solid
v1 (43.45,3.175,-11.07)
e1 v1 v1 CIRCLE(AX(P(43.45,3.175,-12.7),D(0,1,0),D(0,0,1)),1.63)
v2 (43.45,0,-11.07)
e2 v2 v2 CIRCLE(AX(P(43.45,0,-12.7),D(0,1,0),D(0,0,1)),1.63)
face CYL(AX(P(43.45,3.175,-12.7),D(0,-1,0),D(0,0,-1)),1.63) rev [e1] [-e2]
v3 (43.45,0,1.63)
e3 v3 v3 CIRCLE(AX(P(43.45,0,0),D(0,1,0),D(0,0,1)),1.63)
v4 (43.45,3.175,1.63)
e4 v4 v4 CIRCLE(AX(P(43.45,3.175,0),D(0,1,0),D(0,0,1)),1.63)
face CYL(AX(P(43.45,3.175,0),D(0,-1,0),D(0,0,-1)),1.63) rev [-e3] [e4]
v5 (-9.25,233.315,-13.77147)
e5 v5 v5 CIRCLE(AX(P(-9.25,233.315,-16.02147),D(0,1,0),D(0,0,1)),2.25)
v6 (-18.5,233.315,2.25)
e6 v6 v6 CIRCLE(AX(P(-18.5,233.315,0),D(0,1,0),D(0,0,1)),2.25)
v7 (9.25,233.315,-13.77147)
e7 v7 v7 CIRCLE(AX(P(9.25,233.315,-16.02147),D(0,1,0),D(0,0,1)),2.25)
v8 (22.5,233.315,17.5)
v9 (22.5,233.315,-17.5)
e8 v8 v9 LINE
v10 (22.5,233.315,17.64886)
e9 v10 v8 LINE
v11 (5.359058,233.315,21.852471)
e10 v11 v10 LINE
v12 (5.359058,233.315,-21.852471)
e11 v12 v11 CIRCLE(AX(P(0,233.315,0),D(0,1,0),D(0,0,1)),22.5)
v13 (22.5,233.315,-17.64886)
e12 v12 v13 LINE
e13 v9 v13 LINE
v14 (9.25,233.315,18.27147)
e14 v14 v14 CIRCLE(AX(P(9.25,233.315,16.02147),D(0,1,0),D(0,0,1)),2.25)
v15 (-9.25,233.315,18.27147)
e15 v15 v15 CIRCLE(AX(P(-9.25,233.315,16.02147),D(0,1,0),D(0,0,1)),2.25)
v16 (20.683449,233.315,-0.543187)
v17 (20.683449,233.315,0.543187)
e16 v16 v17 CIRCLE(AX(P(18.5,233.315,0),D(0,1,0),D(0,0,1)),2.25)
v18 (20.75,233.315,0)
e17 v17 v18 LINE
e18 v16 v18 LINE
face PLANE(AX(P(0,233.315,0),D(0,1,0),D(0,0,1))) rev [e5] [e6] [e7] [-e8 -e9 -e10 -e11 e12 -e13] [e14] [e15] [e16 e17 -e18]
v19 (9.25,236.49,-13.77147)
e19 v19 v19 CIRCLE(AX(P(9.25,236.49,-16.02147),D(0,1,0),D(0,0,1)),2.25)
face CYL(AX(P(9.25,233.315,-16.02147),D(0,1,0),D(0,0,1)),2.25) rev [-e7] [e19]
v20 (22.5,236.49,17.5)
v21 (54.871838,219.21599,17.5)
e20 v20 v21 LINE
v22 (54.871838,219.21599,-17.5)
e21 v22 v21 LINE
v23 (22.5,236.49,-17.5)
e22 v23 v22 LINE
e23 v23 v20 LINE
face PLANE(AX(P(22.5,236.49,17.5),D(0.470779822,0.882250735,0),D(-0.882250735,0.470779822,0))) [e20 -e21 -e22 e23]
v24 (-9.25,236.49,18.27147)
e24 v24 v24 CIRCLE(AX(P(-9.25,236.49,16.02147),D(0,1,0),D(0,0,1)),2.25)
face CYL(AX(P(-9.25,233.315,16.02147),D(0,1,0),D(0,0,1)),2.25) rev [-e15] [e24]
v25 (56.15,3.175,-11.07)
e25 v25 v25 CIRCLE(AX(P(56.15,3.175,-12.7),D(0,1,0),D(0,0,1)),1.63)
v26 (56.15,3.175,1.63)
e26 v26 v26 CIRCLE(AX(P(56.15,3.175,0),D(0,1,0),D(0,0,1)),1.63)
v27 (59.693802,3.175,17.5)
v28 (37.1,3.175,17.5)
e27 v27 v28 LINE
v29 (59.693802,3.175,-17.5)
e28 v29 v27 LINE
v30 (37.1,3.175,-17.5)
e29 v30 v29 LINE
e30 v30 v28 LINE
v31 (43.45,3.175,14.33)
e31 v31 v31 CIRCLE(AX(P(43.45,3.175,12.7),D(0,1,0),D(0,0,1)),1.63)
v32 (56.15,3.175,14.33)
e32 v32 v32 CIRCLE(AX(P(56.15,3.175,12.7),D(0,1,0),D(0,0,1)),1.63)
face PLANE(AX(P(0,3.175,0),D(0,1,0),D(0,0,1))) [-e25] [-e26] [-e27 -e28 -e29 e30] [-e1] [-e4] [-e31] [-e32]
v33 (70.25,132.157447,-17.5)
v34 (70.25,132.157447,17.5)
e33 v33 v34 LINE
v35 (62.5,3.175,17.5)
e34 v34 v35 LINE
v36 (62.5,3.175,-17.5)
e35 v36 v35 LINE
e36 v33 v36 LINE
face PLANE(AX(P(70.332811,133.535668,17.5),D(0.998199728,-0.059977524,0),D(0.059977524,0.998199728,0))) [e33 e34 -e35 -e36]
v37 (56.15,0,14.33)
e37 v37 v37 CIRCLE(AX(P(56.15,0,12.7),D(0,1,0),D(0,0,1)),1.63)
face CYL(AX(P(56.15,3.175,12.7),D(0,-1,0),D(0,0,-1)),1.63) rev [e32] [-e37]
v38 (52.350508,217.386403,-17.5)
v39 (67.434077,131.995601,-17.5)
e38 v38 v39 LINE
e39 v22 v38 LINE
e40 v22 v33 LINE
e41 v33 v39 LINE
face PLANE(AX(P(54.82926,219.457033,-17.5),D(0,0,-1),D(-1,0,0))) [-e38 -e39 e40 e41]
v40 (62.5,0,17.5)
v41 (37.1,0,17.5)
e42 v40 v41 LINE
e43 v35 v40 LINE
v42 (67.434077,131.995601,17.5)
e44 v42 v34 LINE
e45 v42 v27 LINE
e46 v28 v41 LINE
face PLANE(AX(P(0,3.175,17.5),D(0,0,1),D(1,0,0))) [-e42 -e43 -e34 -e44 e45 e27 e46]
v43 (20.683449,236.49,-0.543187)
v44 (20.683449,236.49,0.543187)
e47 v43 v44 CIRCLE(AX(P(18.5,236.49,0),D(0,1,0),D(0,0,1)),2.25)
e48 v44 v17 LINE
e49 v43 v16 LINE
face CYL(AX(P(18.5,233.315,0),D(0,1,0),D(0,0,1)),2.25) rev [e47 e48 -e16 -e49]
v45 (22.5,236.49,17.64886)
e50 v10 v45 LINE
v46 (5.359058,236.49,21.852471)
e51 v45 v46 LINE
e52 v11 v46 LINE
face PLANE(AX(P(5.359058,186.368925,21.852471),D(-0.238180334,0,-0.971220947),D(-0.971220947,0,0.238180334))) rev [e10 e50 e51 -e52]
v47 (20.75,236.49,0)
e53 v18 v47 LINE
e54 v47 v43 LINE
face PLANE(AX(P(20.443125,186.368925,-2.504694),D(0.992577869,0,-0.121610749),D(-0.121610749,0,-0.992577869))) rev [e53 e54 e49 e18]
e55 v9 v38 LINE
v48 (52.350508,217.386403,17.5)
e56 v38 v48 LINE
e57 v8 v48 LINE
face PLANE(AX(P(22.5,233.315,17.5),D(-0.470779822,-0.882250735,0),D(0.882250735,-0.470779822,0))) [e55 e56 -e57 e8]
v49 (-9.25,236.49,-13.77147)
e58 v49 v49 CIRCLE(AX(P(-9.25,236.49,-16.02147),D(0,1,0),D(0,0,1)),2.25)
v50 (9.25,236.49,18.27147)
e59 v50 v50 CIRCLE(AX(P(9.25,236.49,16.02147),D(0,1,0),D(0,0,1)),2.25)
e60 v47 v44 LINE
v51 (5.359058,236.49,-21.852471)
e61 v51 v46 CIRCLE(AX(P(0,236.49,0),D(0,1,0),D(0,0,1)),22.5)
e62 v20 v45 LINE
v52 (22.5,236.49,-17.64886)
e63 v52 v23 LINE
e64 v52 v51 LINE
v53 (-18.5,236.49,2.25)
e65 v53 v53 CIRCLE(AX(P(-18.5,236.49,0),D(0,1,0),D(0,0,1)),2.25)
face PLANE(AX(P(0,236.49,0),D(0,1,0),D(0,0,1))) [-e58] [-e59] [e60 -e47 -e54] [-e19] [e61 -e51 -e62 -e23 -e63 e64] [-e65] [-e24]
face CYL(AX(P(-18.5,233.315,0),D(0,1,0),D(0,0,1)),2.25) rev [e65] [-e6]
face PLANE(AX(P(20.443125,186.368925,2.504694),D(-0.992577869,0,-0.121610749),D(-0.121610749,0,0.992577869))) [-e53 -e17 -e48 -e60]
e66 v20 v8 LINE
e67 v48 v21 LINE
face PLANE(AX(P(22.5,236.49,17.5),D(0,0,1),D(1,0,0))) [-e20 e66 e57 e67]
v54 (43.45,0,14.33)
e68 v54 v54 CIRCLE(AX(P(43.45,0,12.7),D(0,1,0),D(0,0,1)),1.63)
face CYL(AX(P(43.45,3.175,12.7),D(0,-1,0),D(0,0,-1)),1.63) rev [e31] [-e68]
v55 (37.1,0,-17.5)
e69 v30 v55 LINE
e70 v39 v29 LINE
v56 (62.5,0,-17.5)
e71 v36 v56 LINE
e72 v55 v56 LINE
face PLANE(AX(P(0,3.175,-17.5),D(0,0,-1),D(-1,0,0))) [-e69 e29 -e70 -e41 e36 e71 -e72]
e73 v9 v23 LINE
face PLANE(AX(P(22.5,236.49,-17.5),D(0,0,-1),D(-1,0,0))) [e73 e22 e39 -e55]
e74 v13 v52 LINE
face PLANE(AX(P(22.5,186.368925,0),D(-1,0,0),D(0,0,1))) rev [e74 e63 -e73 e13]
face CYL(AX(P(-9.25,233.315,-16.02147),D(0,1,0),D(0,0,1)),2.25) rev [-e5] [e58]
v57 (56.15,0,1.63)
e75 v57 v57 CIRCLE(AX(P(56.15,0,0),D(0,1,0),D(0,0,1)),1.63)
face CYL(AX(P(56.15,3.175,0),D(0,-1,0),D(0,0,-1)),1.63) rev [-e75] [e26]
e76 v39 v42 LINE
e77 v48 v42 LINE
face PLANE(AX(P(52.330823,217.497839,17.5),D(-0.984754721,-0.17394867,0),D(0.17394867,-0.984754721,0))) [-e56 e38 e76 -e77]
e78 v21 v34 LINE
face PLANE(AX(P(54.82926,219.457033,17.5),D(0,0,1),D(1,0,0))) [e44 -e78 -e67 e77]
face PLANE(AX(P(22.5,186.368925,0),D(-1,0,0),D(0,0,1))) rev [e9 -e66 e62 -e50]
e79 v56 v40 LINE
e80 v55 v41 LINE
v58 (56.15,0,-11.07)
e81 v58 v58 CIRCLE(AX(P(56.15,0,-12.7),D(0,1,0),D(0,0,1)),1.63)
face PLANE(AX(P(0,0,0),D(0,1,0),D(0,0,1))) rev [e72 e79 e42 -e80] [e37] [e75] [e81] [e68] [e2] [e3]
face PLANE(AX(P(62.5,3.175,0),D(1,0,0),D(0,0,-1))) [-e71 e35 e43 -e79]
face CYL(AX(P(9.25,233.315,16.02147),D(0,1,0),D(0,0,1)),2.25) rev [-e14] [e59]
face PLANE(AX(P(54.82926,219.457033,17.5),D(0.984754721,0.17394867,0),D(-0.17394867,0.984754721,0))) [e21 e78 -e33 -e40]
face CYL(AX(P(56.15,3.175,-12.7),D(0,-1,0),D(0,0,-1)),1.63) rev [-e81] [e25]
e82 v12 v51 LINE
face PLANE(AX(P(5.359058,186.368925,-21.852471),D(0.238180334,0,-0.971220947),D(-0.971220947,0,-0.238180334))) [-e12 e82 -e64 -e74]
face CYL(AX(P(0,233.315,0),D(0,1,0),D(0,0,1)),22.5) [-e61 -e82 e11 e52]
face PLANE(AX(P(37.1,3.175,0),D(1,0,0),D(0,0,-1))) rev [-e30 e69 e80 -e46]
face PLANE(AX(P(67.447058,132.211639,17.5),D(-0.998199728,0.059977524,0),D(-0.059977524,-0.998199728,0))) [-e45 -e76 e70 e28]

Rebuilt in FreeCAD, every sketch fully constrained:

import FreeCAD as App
import Part
import Sketcher
from FreeCAD import Vector
Q = App.Units.Quantity

doc = App.newDocument("Part")
params = doc.addObject("Spreadsheet::Sheet", "Params")
for row, (alias, value) in enumerate([
    ("sketch1_diameter", "45 mm"),
    ("sketch1_diameter2", "4.5 mm"),
    ("pad1_length", "3.175 mm"),
    ("pad2_length", "3.175 mm"),
    ("sketch3_diameter", "3.26 mm"),
    ("sketch3_height", "35 mm"),
    ("sketch3_width", "25.4 mm"),
    ("pad3_length", "3.175 mm"),
    ("sketch4_height", "35 mm"),
], start=1):
    params.set(f"A{row}", alias)
    params.set(f"B{row}", "=" + value)
    params.setAlias(f"B{row}", alias)

body = doc.addObject("PartDesign::Body", "Body")

# Sketch on XZ plane
sketch1 = body.newObject("Sketcher::SketchObject", "Sketch")
sketch1.AttachmentSupport = (doc.getObject("XZ_Plane"), [""])
sketch1.MapMode = "FlatFace"
sketch1.AttachmentOffset = App.Placement(Vector(0, 0, -236.49), App.Rotation())
sketch1.addGeometry([
    Part.Circle(Vector(0, 0, 0), Vector(0, 0, 1), 22.5),  # 0
    Part.Circle(Vector(-9.25, -16.02147, 0), Vector(0, 0, 1), 2.25),  # 1
    Part.Circle(Vector(-18.5, 0, 0), Vector(0, 0, 1), 2.25),  # 2
    Part.Circle(Vector(-9.25, 16.02147, 0), Vector(0, 0, 1), 2.25),  # 3
    Part.Circle(Vector(9.25, -16.02147, 0), Vector(0, 0, 1), 2.25),  # 4
    Part.Circle(Vector(18.5, 0, 0), Vector(0, 0, 1), 2.25),  # 5
    Part.Circle(Vector(9.25, 16.02147, 0), Vector(0, 0, 1), 2.25),  # 6
], False)
sketch1.addConstraint([
    Sketcher.Constraint("Coincident", 0, 3, -1, 1),
    Sketcher.Constraint("Equal", 1, 2),
    Sketcher.Constraint("Equal", 2, 3),
    Sketcher.Constraint("Equal", 3, 4),
    Sketcher.Constraint("Equal", 4, 5),
    Sketcher.Constraint("Equal", 5, 6),
    Sketcher.Constraint("Symmetric", 3, 3, 4, 3, -1, 1),
    Sketcher.Constraint("Symmetric", 2, 3, 5, 3, -1, 1),
    Sketcher.Constraint("Symmetric", 1, 3, 6, 3, -1, 1),
    Sketcher.Constraint("Symmetric", 1, 3, 4, 3, -2),
    Sketcher.Constraint("PointOnObject", 2, 3, -1),
    Sketcher.Constraint("Diameter", 0, Q("45 mm")),
    Sketcher.Constraint("Diameter", 1, Q("4.5 mm")),
    Sketcher.Constraint("DistanceX", 2, 3, 5, 3, Q("37 mm")),
    Sketcher.Constraint("DistanceX", 1, 3, 4, 3, Q("18.5 mm")),
    Sketcher.Constraint("DistanceY", 1, 3, -1, 1, Q("16.02147 mm")),
])
sketch1.setExpression("Constraints[11]", "Params.sketch1_diameter")
sketch1.setExpression("Constraints[12]", "Params.sketch1_diameter2")
pad1 = body.newObject("PartDesign::Pad", "Pad")
pad1.Profile = sketch1
pad1.setExpression("Length", "Params.pad1_length")

# Sketch on XZ plane
sketch2 = body.newObject("Sketcher::SketchObject", "Sketch001")
sketch2.AttachmentSupport = (doc.getObject("XZ_Plane"), [""])
sketch2.MapMode = "FlatFace"
sketch2.AttachmentOffset = App.Placement(Vector(0, 0, -236.49), App.Rotation())
sketch2.addGeometry([
    Part.LineSegment(Vector(22.5, 17.64886, 0), Vector(22.5, -17.64886, 0)),  # 0
    Part.LineSegment(Vector(22.5, -17.64886, 0), Vector(5.359058, -21.852471, 0)),  # 1
    Part.LineSegment(Vector(5.359058, -21.852471, 0), Vector(19.341522, -11.495892, 0)),  # 2
    Part.LineSegment(Vector(19.341522, -11.495892, 0), Vector(20.75, 0, 0)),  # 3
    Part.LineSegment(Vector(20.75, 0, 0), Vector(19.341522, 11.495892, 0)),  # 4
    Part.LineSegment(Vector(19.341522, 11.495892, 0), Vector(5.359058, 21.852471, 0)),  # 5
    Part.LineSegment(Vector(5.359058, 21.852471, 0), Vector(22.5, 17.64886, 0)),  # 6
], False)
sketch2.addConstraint([
    Sketcher.Constraint("Coincident", 0, 2, 1, 1),
    Sketcher.Constraint("Coincident", 1, 2, 2, 1),
    Sketcher.Constraint("Coincident", 2, 2, 3, 1),
    Sketcher.Constraint("Coincident", 3, 2, 4, 1),
    Sketcher.Constraint("Coincident", 4, 2, 5, 1),
    Sketcher.Constraint("Coincident", 5, 2, 6, 1),
    Sketcher.Constraint("Coincident", 6, 2, 0, 1),
    Sketcher.Constraint("Vertical", 0),
    Sketcher.Constraint("Symmetric", 2, 2, 4, 2, -1),
    Sketcher.Constraint("Symmetric", 1, 2, 5, 2, -1),
    Sketcher.Constraint("PointOnObject", 3, 2, -1),
    Sketcher.Constraint("Equal", 1, 6),
    Sketcher.Constraint("DistanceX", -1, 1, 0, 2, Q("22.5 mm")),
    Sketcher.Constraint("DistanceX", -1, 1, 3, 2, Q("20.75 mm")),
    Sketcher.Constraint("DistanceY", 0, 2, 0, 1, Q("35.29772 mm")),
    Sketcher.Constraint("Distance", 1, Q("17.64886 mm")),
    Sketcher.Constraint("Distance", 2, Q("17.400232 mm")),
    Sketcher.Constraint("DistanceY", 1, 2, -1, 1, Q("21.852471 mm")),
    Sketcher.Constraint("DistanceY", 2, 2, -1, 1, Q("11.495892 mm")),
])
pad2 = body.newObject("PartDesign::Pad", "Pad001")
pad2.Profile = sketch2
pad2.setExpression("Length", "Params.pad2_length")
body2 = doc.addObject("PartDesign::Body", "Body001")

# Sketch on XZ plane
sketch3 = body2.newObject("Sketcher::SketchObject", "Sketch002")
sketch3.AttachmentSupport = (doc.getObject("XZ_Plane001"), [""])
sketch3.MapMode = "FlatFace"
sketch3.addGeometry([
    Part.LineSegment(Vector(37.1, -17.5, 0), Vector(37.1, 17.5, 0)),  # 0
    Part.LineSegment(Vector(37.1, 17.5, 0), Vector(62.5, 17.5, 0)),  # 1
    Part.LineSegment(Vector(62.5, 17.5, 0), Vector(62.5, -17.5, 0)),  # 2
    Part.LineSegment(Vector(62.5, -17.5, 0), Vector(37.1, -17.5, 0)),  # 3
    Part.Circle(Vector(43.45, 12.7, 0), Vector(0, 0, 1), 1.63),  # 4
    Part.Circle(Vector(56.15, 12.7, 0), Vector(0, 0, 1), 1.63),  # 5
    Part.Circle(Vector(43.45, 0, 0), Vector(0, 0, 1), 1.63),  # 6
    Part.Circle(Vector(43.45, -12.7, 0), Vector(0, 0, 1), 1.63),  # 7
    Part.Circle(Vector(56.15, 0, 0), Vector(0, 0, 1), 1.63),  # 8
    Part.Circle(Vector(56.15, -12.7, 0), Vector(0, 0, 1), 1.63),  # 9
], False)
sketch3.addConstraint([
    Sketcher.Constraint("Coincident", 0, 2, 1, 1),
    Sketcher.Constraint("Coincident", 1, 2, 2, 1),
    Sketcher.Constraint("Coincident", 2, 2, 3, 1),
    Sketcher.Constraint("Coincident", 3, 2, 0, 1),
    Sketcher.Constraint("Vertical", 0),
    Sketcher.Constraint("Horizontal", 1),
    Sketcher.Constraint("Vertical", 2),
    Sketcher.Constraint("Horizontal", 3),
    Sketcher.Constraint("Equal", 4, 5),
    Sketcher.Constraint("Equal", 5, 6),
    Sketcher.Constraint("Equal", 6, 7),
    Sketcher.Constraint("Equal", 7, 8),
    Sketcher.Constraint("Equal", 8, 9),
    Sketcher.Constraint("Symmetric", 4, 3, 7, 3, -1),
    Sketcher.Constraint("Symmetric", 5, 3, 9, 3, -1),
    Sketcher.Constraint("PointOnObject", 6, 3, -1),
    Sketcher.Constraint("PointOnObject", 8, 3, -1),
    Sketcher.Constraint("Horizontal", 4, 3, 5, 3),
    Sketcher.Constraint("Vertical", 4, 3, 6, 3),
    Sketcher.Constraint("Vertical", 5, 3, 8, 3),
    Sketcher.Constraint("Diameter", 4, Q("3.26 mm")),
    Sketcher.Constraint("DistanceY", 0, 1, 0, 2, Q("35 mm")),
    Sketcher.Constraint("DistanceX", 1, 1, 1, 2, Q("25.4 mm")),
    Sketcher.Constraint("DistanceY", -1, 1, 4, 3, Q("12.7 mm")),
    Sketcher.Constraint("DistanceX", -1, 1, 0, 2, Q("37.1 mm")),
    Sketcher.Constraint("DistanceY", -1, 1, 0, 2, Q("17.5 mm")),
    Sketcher.Constraint("DistanceX", 4, 3, 5, 3, Q("12.7 mm")),
    Sketcher.Constraint("DistanceX", -1, 1, 4, 3, Q("43.45 mm")),
])
sketch3.setExpression("Constraints[20]", "Params.sketch3_diameter")
sketch3.setExpression("Constraints[21]", "Params.sketch3_height")
sketch3.setExpression("Constraints[22]", "Params.sketch3_width")
pad3 = body2.newObject("PartDesign::Pad", "Pad002")
pad3.Profile = sketch3
pad3.setExpression("Length", "Params.pad3_length")
pad3.Reversed = True
body.AllowCompound = True
doc.recompute()

boolean = body.newObject("PartDesign::Boolean", "Boolean")
boolean.Type = "Fuse"
boolean.addObjects([body2])

# Sketch on YZ plane
sketch4 = body.newObject("Sketcher::SketchObject", "Sketch003")
sketch4.AttachmentSupport = (doc.getObject("YZ_Plane"), [""])
sketch4.MapMode = "FlatFace"
sketch4.AttachmentOffset = App.Placement(Vector(0, 0, 22.5), App.Rotation())
sketch4.addGeometry([
    Part.LineSegment(Vector(236.49, 17.5, 0), Vector(233.315, 17.5, 0)),
    Part.LineSegment(Vector(233.315, 17.5, 0), Vector(233.315, -17.5, 0)),
    Part.LineSegment(Vector(233.315, -17.5, 0), Vector(236.49, -17.5, 0)),
    Part.LineSegment(Vector(236.49, -17.5, 0), Vector(236.49, 17.5, 0)),
], False)
sketch4.addConstraint([
    Sketcher.Constraint("Coincident", 0, 2, 1, 1),
    Sketcher.Constraint("Coincident", 1, 2, 2, 1),
    Sketcher.Constraint("Coincident", 2, 2, 3, 1),
    Sketcher.Constraint("Coincident", 3, 2, 0, 1),
    Sketcher.Constraint("Horizontal", 0),
    Sketcher.Constraint("Vertical", 1),
    Sketcher.Constraint("Horizontal", 2),
    Sketcher.Constraint("Vertical", 3),
    Sketcher.Constraint("DistanceY", 1, 2, 1, 1, Q("35 mm")),
    Sketcher.Constraint("DistanceY", -1, 1, 0, 2, Q("17.5 mm")),
    Sketcher.Constraint("DistanceX", 0, 2, 0, 1, Q("3.175 mm")),
    Sketcher.Constraint("DistanceX", -1, 1, 2, 2, Q("236.49 mm")),
])
sketch4.setExpression("Constraints[8]", "Params.sketch4_height")

# Sketch on XY plane
sketch5 = body.newObject("Sketcher::SketchObject", "Sketch004")
sketch5.AttachmentSupport = (doc.getObject("XY_Plane"), [""])
sketch5.MapMode = "FlatFace"
sketch5.addGeometry([
    Part.LineSegment(Vector(22.5, 236.49, 0), Vector(54.871838, 219.21599, 0)),
    Part.LineSegment(Vector(54.871838, 219.21599, 0), Vector(70.25, 132.157447, 0)),
    Part.LineSegment(Vector(70.25, 132.157447, 0), Vector(62.5, 3.175, 0)),
], False)
sketch5.addConstraint([
    Sketcher.Constraint("Coincident", 0, 2, 1, 1),
    Sketcher.Constraint("Coincident", 1, 2, 2, 1),
    Sketcher.Constraint("DistanceX", 0, 1, 2, 2, Q("40 mm")),
    Sketcher.Constraint("DistanceX", -1, 1, 0, 1, Q("22.5 mm")),
    Sketcher.Constraint("DistanceY", -1, 1, 0, 1, Q("236.49 mm")),
    Sketcher.Constraint("DistanceX", -1, 1, 1, 2, Q("70.25 mm")),
    Sketcher.Constraint("DistanceY", -1, 1, 2, 2, Q("3.175 mm")),
    Sketcher.Constraint("Distance", 1, Q("88.406322 mm")),
    Sketcher.Constraint("Distance", 2, Q("129.21507 mm")),
    Sketcher.Constraint("DistanceY", -1, 1, 0, 2, Q("219.21599 mm")),
])
doc.recompute()

additivepipe = body.newObject("PartDesign::AdditivePipe", "AdditivePipe")
additivepipe.Profile = sketch4
additivepipe.Spine = (sketch5, ["Edge1", "Edge2", "Edge3"])
additivepipe.Transition = "Right corner"

doc.recompute()
